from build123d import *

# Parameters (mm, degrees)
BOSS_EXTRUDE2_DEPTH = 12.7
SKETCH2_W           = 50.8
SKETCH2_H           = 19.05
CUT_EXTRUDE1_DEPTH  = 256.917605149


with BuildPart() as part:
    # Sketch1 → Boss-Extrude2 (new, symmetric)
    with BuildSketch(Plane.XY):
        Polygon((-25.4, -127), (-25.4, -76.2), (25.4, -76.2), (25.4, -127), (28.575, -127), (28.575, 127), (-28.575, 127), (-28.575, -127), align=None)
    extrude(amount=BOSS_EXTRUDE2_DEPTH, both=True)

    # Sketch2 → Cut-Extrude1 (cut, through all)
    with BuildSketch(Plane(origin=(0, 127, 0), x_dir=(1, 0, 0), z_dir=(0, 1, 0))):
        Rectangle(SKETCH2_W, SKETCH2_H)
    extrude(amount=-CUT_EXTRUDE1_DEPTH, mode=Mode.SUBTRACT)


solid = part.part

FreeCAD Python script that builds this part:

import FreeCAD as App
import Part
import Sketcher
Q = App.Units.Quantity


def add_polygon(sketch, points):
    """Adds a closed chain of lines whose ends are joined by coincident constraints."""
    first, n = sketch.GeometryCount, len(points)
    for a, b in zip(points, points[1:] + points[:1]):
        sketch.addGeometry(Part.LineSegment(App.Vector(*a, 0), App.Vector(*b, 0)), False)
    for i in range(n):
        sketch.addConstraint(Sketcher.Constraint("Coincident", first + i, 2, first + (i + 1) % n, 1))

doc = App.newDocument("Part")
body = doc.addObject("PartDesign::Body", "Body")

sketch1 = body.newObject("Sketcher::SketchObject", "Sketch")
sketch1.AttachmentSupport = (doc.getObject("XY_Plane"), [""])
sketch1.MapMode = "FlatFace"
add_polygon(sketch1, [(-25.4, -127), (-25.4, -76.2), (25.4, -76.2), (25.4, -127), (28.6, -127), (28.6, 127), (-28.6, 127), (-28.6, -127)])
sketch1.addConstraint([
    Sketcher.Constraint("Vertical", 0),
    Sketcher.Constraint("Horizontal", 1),
    Sketcher.Constraint("Vertical", 2),
    Sketcher.Constraint("Horizontal", 3),
    Sketcher.Constraint("Vertical", 4),
    Sketcher.Constraint("Horizontal", 5),
    Sketcher.Constraint("Vertical", 6),
    Sketcher.Constraint("Horizontal", 7),
    Sketcher.Constraint("Symmetric", 3, 2, 5, 2, -1, 1),
    Sketcher.Constraint("Symmetric", 2, 2, 7, 2, -2),
    Sketcher.Constraint("Equal", 1, 0),
    Sketcher.Constraint("DistanceX", 1, 1, 1, 2, Q("2 in")),
    Sketcher.Constraint("DistanceY", 4, 1, 4, 2, Q("10 in")),
    Sketcher.Constraint("DistanceX", 5, 2, 5, 1, Q("2.25 in")),
])
pad1 = body.newObject("PartDesign::Pad", "Pad")
pad1.Profile = sketch1
pad1.Length = Q("1 in")
pad1.Midplane = True

sketch2 = body.newObject("Sketcher::SketchObject", "Sketch001")
sketch2.AttachmentSupport = (doc.getObject("XZ_Plane"), [""])
sketch2.MapMode = "FlatFace"
sketch2.AttachmentOffset = App.Placement(App.Vector(0, 0, -5 * 25.4), App.Rotation())
add_polygon(sketch2, [(-25, -10), (-25, 10), (25, 10), (25, -10)])
sketch2.addConstraint([
    Sketcher.Constraint("Vertical", 0),
    Sketcher.Constraint("Horizontal", 1),
    Sketcher.Constraint("Vertical", 2),
    Sketcher.Constraint("Horizontal", 3),
    Sketcher.Constraint("Symmetric", 0, 2, 2, 2, -1, 1),
    Sketcher.Constraint("DistanceX", 1, 1, 1, 2, Q("2 in")),
    Sketcher.Constraint("DistanceY", 0, 1, 0, 2, Q("0.75 in")),
])
pocket1 = body.newObject("PartDesign::Pocket", "Pocket")
pocket1.Profile = sketch2
pocket1.Type = "ThroughAll"
pocket1.Reversed = True

doc.recompute()
